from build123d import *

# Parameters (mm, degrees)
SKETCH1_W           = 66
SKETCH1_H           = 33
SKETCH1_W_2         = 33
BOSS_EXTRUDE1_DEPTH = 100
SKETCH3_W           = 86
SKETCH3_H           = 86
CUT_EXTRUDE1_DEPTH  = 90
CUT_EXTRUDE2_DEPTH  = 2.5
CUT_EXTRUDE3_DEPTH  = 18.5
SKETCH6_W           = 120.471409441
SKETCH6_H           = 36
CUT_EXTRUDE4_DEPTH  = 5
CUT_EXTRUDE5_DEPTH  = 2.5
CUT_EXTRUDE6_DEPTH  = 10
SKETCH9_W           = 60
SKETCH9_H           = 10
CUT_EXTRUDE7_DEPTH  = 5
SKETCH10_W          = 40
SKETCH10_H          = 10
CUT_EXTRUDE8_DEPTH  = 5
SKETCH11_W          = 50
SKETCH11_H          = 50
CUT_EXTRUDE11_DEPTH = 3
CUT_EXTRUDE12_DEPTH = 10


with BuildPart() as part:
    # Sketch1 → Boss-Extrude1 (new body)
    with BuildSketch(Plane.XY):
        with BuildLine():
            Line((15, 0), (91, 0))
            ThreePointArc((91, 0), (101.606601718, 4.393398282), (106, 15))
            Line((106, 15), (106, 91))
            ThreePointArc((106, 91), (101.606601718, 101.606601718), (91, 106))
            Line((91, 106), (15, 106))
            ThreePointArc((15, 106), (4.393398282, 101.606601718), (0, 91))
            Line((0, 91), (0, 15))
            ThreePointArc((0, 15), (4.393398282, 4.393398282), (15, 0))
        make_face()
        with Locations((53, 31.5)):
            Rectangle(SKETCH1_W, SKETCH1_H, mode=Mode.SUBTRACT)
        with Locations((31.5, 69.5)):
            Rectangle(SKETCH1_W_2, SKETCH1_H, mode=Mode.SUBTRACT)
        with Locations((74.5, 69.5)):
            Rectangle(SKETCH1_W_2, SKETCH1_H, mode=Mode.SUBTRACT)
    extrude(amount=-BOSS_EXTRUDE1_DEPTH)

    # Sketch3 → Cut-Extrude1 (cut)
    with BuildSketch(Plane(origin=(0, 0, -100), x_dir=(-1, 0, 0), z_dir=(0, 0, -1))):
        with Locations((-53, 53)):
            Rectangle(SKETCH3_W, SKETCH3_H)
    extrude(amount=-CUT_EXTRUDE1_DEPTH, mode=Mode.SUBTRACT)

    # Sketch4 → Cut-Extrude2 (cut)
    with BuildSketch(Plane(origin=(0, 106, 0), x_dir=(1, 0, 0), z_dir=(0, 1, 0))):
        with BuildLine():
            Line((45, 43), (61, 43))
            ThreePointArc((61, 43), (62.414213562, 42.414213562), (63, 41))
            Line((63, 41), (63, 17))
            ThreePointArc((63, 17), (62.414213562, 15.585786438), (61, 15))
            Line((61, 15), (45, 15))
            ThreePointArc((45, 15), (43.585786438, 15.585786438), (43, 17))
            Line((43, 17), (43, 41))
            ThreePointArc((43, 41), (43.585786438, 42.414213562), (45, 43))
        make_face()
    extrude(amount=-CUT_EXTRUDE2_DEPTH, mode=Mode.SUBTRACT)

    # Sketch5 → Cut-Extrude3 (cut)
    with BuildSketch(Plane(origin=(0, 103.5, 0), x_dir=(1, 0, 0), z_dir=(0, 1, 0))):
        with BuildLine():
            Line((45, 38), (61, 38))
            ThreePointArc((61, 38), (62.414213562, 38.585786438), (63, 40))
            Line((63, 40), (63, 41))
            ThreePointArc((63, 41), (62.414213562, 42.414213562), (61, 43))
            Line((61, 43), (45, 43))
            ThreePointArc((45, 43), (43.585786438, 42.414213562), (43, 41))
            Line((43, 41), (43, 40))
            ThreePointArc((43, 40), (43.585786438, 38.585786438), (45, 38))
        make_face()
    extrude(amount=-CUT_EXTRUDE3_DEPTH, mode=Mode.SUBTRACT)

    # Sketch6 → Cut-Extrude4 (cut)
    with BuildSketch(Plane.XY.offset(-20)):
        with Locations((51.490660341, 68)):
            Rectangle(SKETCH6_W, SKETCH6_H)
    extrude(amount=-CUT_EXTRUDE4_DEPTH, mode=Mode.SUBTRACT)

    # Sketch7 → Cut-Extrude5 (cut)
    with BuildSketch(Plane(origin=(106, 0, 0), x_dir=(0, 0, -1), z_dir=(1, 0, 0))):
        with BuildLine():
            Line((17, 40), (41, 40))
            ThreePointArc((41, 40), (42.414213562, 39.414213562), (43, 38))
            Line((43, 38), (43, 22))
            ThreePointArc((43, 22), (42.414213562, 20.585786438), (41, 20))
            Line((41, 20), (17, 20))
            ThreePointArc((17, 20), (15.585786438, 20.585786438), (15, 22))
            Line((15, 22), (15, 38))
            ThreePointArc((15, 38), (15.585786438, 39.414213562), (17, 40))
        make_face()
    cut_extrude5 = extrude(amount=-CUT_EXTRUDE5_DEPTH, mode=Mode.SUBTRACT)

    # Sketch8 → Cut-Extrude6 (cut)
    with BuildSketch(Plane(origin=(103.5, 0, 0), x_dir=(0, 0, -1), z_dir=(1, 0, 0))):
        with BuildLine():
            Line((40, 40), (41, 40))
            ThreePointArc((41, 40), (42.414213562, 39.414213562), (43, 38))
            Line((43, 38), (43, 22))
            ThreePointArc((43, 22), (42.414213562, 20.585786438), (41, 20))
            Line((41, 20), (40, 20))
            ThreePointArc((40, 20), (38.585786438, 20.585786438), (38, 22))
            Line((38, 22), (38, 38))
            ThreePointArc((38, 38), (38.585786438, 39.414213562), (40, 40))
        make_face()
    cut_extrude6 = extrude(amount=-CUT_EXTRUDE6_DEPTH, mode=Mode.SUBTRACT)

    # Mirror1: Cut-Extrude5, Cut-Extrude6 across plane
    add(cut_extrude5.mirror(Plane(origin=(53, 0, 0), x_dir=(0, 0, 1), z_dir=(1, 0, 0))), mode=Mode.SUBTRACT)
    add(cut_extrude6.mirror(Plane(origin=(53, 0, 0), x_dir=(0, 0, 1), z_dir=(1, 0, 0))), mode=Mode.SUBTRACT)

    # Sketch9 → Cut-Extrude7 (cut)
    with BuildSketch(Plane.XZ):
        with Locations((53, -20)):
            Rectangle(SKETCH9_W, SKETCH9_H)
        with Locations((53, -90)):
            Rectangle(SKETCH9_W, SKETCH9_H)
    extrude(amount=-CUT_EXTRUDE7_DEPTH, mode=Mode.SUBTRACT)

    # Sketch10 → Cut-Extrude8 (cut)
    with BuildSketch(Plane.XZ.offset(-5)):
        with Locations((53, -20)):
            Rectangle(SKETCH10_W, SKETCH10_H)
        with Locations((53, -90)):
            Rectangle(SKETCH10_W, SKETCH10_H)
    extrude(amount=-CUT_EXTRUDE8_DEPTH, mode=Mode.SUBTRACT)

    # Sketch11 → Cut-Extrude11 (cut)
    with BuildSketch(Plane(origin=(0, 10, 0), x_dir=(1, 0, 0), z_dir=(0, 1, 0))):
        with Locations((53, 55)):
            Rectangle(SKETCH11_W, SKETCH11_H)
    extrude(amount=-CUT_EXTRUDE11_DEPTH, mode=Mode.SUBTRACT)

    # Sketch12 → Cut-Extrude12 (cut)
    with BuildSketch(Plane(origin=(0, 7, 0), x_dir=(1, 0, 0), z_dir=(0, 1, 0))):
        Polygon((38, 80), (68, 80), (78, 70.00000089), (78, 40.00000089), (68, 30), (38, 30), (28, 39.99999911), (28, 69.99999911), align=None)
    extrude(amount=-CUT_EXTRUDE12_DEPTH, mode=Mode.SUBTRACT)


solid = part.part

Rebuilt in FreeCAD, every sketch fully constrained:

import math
import FreeCAD as App
import Part
import Sketcher
from FreeCAD import Vector

doc = App.newDocument("Part")
body = doc.addObject("PartDesign::Body", "Body")

sketch1 = doc.addObject("Sketcher::SketchObject", "Sketch")
body.addObject(sketch1)
sketch1.AttachmentSupport = (doc.XY_Plane, [""])
sketch1.MapMode = "FlatFace"
sketch1.addGeometry(Part.LineSegment(Vector(15, 0, 0), Vector(91, 0, 0)), False)
sketch1.addGeometry(Part.ArcOfCircle(Part.Circle(Vector(91, 15, 0), Vector(0, 0, 1), 15), math.radians(-90), math.radians(0)), False)
sketch1.addGeometry(Part.LineSegment(Vector(106, 15, 0), Vector(106, 91, 0)), False)
sketch1.addGeometry(Part.ArcOfCircle(Part.Circle(Vector(91, 91, 0), Vector(0, 0, 1), 15), math.radians(0), math.radians(90)), False)
sketch1.addGeometry(Part.LineSegment(Vector(91, 106, 0), Vector(15, 106, 0)), False)
sketch1.addGeometry(Part.ArcOfCircle(Part.Circle(Vector(15, 91, 0), Vector(0, 0, 1), 15), math.radians(90), math.radians(180)), False)
sketch1.addGeometry(Part.LineSegment(Vector(0, 91, 0), Vector(0, 15, 0)), False)
sketch1.addGeometry(Part.ArcOfCircle(Part.Circle(Vector(15, 15, 0), Vector(0, 0, 1), 15), math.radians(180), math.radians(270)), False)
sketch1.addGeometry(Part.LineSegment(Vector(86, 15, 0), Vector(20, 15, 0)), False)
sketch1.addGeometry(Part.LineSegment(Vector(20, 15, 0), Vector(20, 48, 0)), False)
sketch1.addGeometry(Part.LineSegment(Vector(20, 48, 0), Vector(86, 48, 0)), False)
sketch1.addGeometry(Part.LineSegment(Vector(86, 48, 0), Vector(86, 15, 0)), False)
sketch1.addGeometry(Part.LineSegment(Vector(48, 53, 0), Vector(15, 53, 0)), False)
sketch1.addGeometry(Part.LineSegment(Vector(15, 53, 0), Vector(15, 86, 0)), False)
sketch1.addGeometry(Part.LineSegment(Vector(15, 86, 0), Vector(48, 86, 0)), False)
sketch1.addGeometry(Part.LineSegment(Vector(48, 86, 0), Vector(48, 53, 0)), False)
sketch1.addGeometry(Part.LineSegment(Vector(91, 53, 0), Vector(58, 53, 0)), False)
sketch1.addGeometry(Part.LineSegment(Vector(58, 53, 0), Vector(58, 86, 0)), False)
sketch1.addGeometry(Part.LineSegment(Vector(58, 86, 0), Vector(91, 86, 0)), False)
sketch1.addGeometry(Part.LineSegment(Vector(91, 86, 0), Vector(91, 53, 0)), False)
sketch1.addConstraint(Sketcher.Constraint("Tangent", 0, 2, 1, 1))
sketch1.addConstraint(Sketcher.Constraint("Tangent", 1, 2, 2, 1))
sketch1.addConstraint(Sketcher.Constraint("Tangent", 2, 2, 3, 1))
sketch1.addConstraint(Sketcher.Constraint("Tangent", 3, 2, 4, 1))
sketch1.addConstraint(Sketcher.Constraint("Tangent", 4, 2, 5, 1))
sketch1.addConstraint(Sketcher.Constraint("Tangent", 5, 2, 6, 1))
sketch1.addConstraint(Sketcher.Constraint("Tangent", 6, 2, 7, 1))
sketch1.addConstraint(Sketcher.Constraint("Tangent", 7, 2, 0, 1))
sketch1.addConstraint(Sketcher.Constraint("Coincident", 8, 2, 9, 1))
sketch1.addConstraint(Sketcher.Constraint("Coincident", 9, 2, 10, 1))
sketch1.addConstraint(Sketcher.Constraint("Coincident", 10, 2, 11, 1))
sketch1.addConstraint(Sketcher.Constraint("Coincident", 11, 2, 8, 1))
sketch1.addConstraint(Sketcher.Constraint("Coincident", 12, 2, 13, 1))
sketch1.addConstraint(Sketcher.Constraint("Coincident", 13, 2, 14, 1))
sketch1.addConstraint(Sketcher.Constraint("Coincident", 14, 2, 15, 1))
sketch1.addConstraint(Sketcher.Constraint("Coincident", 15, 2, 12, 1))
sketch1.addConstraint(Sketcher.Constraint("Coincident", 16, 2, 17, 1))
sketch1.addConstraint(Sketcher.Constraint("Coincident", 17, 2, 18, 1))
sketch1.addConstraint(Sketcher.Constraint("Coincident", 18, 2, 19, 1))
sketch1.addConstraint(Sketcher.Constraint("Coincident", 19, 2, 16, 1))
sketch1.addConstraint(Sketcher.Constraint("Horizontal", 0))
sketch1.addConstraint(Sketcher.Constraint("Vertical", 2))
sketch1.addConstraint(Sketcher.Constraint("Horizontal", 4))
sketch1.addConstraint(Sketcher.Constraint("Vertical", 6))
sketch1.addConstraint(Sketcher.Constraint("Horizontal", 8))
sketch1.addConstraint(Sketcher.Constraint("Vertical", 9))
sketch1.addConstraint(Sketcher.Constraint("Horizontal", 10))
sketch1.addConstraint(Sketcher.Constraint("Vertical", 11))
sketch1.addConstraint(Sketcher.Constraint("Horizontal", 12))
sketch1.addConstraint(Sketcher.Constraint("Vertical", 13))
sketch1.addConstraint(Sketcher.Constraint("Horizontal", 14))
sketch1.addConstraint(Sketcher.Constraint("Vertical", 15))
sketch1.addConstraint(Sketcher.Constraint("Horizontal", 16))
sketch1.addConstraint(Sketcher.Constraint("Vertical", 17))
sketch1.addConstraint(Sketcher.Constraint("Horizontal", 18))
sketch1.addConstraint(Sketcher.Constraint("Vertical", 19))
sketch1.addConstraint(Sketcher.Constraint("Equal", 1, 3))
sketch1.addConstraint(Sketcher.Constraint("Equal", 3, 5))
sketch1.addConstraint(Sketcher.Constraint("Equal", 5, 7))
sketch1.addConstraint(Sketcher.Constraint("PointOnObject", 0, 2, -1))
sketch1.addConstraint(Sketcher.Constraint("PointOnObject", 5, 2, -2))
sketch1.addConstraint(Sketcher.Constraint("Horizontal", 6, 2, 8, 2))
sketch1.addConstraint(Sketcher.Constraint("Horizontal", 15, 2, 16, 2))
sketch1.addConstraint(Sketcher.Constraint("Horizontal", 14, 2, 17, 2))
sketch1.addConstraint(Sketcher.Constraint("Vertical", 7, 2, 12, 2))
sketch1.addConstraint(Sketcher.Constraint("Vertical", 3, 2, 18, 2))
sketch1.addConstraint(Sketcher.Constraint("Equal", 14, 16))
sketch1.addConstraint(Sketcher.Constraint("Equal", 4, 2))
sketch1.addConstraint(Sketcher.Constraint("Equal", 18, 9))
sketch1.addConstraint(Sketcher.Constraint("Equal", 11, 13))
sketch1.addConstraint(Sketcher.Constraint("Radius", 1, 15.0))
sketch1.addConstraint(Sketcher.Constraint("DistanceX", 0, 1, 0, 2, 76.0))
sketch1.addConstraint(Sketcher.Constraint("DistanceX", 8, 2, 8, 1, 66.0))
sketch1.addConstraint(Sketcher.Constraint("DistanceX", 12, 2, 12, 1, 33.0))
sketch1.addConstraint(Sketcher.Constraint("DistanceX", -1, 1, 8, 2, 20.0))
sketch1.addConstraint(Sketcher.Constraint("DistanceY", -1, 1, 12, 2, 53.0))
pad1 = doc.addObject("PartDesign::Pad", "Pad")
body.addObject(pad1)
pad1.Profile = sketch1
pad1.Length = 100
pad1.Reversed = True

sketch2 = doc.addObject("Sketcher::SketchObject", "Sketch001")
body.addObject(sketch2)
sketch2.AttachmentSupport = (doc.XY_Plane, [""])
sketch2.MapMode = "FlatFace"
sketch2.AttachmentOffset = App.Placement(Vector(0, 0, -100), App.Rotation())
sketch2.addGeometry(Part.LineSegment(Vector(96, 96, 0), Vector(96, 10, 0)), False)
sketch2.addGeometry(Part.LineSegment(Vector(96, 10, 0), Vector(10, 10, 0)), False)
sketch2.addGeometry(Part.LineSegment(Vector(10, 10, 0), Vector(10, 96, 0)), False)
sketch2.addGeometry(Part.LineSegment(Vector(10, 96, 0), Vector(96, 96, 0)), False)
sketch2.addConstraint(Sketcher.Constraint("Coincident", 0, 2, 1, 1))
sketch2.addConstraint(Sketcher.Constraint("Coincident", 1, 2, 2, 1))
sketch2.addConstraint(Sketcher.Constraint("Coincident", 2, 2, 3, 1))
sketch2.addConstraint(Sketcher.Constraint("Coincident", 3, 2, 0, 1))
sketch2.addConstraint(Sketcher.Constraint("Vertical", 0))
sketch2.addConstraint(Sketcher.Constraint("Horizontal", 1))
sketch2.addConstraint(Sketcher.Constraint("Vertical", 2))
sketch2.addConstraint(Sketcher.Constraint("Horizontal", 3))
sketch2.addConstraint(Sketcher.Constraint("Equal", 3, 0))
sketch2.addConstraint(Sketcher.Constraint("DistanceX", 1, 2, 1, 1, 86.0))
sketch2.addConstraint(Sketcher.Constraint("DistanceX", -1, 1, 0, 2, 96.0))
sketch2.addConstraint(Sketcher.Constraint("DistanceY", -1, 1, 0, 2, 10.0))
pocket1 = doc.addObject("PartDesign::Pocket", "Pocket")
body.addObject(pocket1)
pocket1.Profile = sketch2
pocket1.Length = 90
pocket1.Reversed = True

sketch3 = doc.addObject("Sketcher::SketchObject", "Sketch002")
body.addObject(sketch3)
sketch3.AttachmentSupport = (doc.XZ_Plane, [""])
sketch3.MapMode = "FlatFace"
sketch3.AttachmentOffset = App.Placement(Vector(0, 0, -106), App.Rotation())
sketch3.addGeometry(Part.LineSegment(Vector(61, -43, 0), Vector(45, -43, 0)), False)
sketch3.addGeometry(Part.ArcOfCircle(Part.Circle(Vector(45, -41, 0), Vector(0, 0, 1), 2), math.radians(-180), math.radians(-90)), False)
sketch3.addGeometry(Part.LineSegment(Vector(43, -41, 0), Vector(43, -17, 0)), False)
sketch3.addGeometry(Part.ArcOfCircle(Part.Circle(Vector(45, -17, 0), Vector(0, 0, 1), 2), math.radians(90), math.radians(180)), False)
sketch3.addGeometry(Part.LineSegment(Vector(45, -15, 0), Vector(61, -15, 0)), False)
sketch3.addGeometry(Part.ArcOfCircle(Part.Circle(Vector(61, -17, 0), Vector(0, 0, 1), 2), math.radians(0), math.radians(90)), False)
sketch3.addGeometry(Part.LineSegment(Vector(63, -17, 0), Vector(63, -41, 0)), False)
sketch3.addGeometry(Part.ArcOfCircle(Part.Circle(Vector(61, -41, 0), Vector(0, 0, 1), 2), math.radians(-90), math.radians(0)), False)
sketch3.addConstraint(Sketcher.Constraint("Tangent", 0, 2, 1, 2))
sketch3.addConstraint(Sketcher.Constraint("Tangent", 1, 1, 2, 1))
sketch3.addConstraint(Sketcher.Constraint("Tangent", 2, 2, 3, 2))
sketch3.addConstraint(Sketcher.Constraint("Tangent", 3, 1, 4, 1))
sketch3.addConstraint(Sketcher.Constraint("Tangent", 4, 2, 5, 2))
sketch3.addConstraint(Sketcher.Constraint("Tangent", 5, 1, 6, 1))
sketch3.addConstraint(Sketcher.Constraint("Tangent", 6, 2, 7, 2))
sketch3.addConstraint(Sketcher.Constraint("Tangent", 7, 1, 0, 1))
sketch3.addConstraint(Sketcher.Constraint("Horizontal", 0))
sketch3.addConstraint(Sketcher.Constraint("Vertical", 2))
sketch3.addConstraint(Sketcher.Constraint("Horizontal", 4))
sketch3.addConstraint(Sketcher.Constraint("Vertical", 6))
sketch3.addConstraint(Sketcher.Constraint("Equal", 1, 3))
sketch3.addConstraint(Sketcher.Constraint("Equal", 3, 5))
sketch3.addConstraint(Sketcher.Constraint("Equal", 5, 7))
sketch3.addConstraint(Sketcher.Constraint("Radius", 1, 2.0))
sketch3.addConstraint(Sketcher.Constraint("DistanceX", 0, 2, 0, 1, 16.0))
sketch3.addConstraint(Sketcher.Constraint("DistanceY", 2, 1, 2, 2, 24.0))
sketch3.addConstraint(Sketcher.Constraint("DistanceX", -1, 1, 1, 3, 45.0))
sketch3.addConstraint(Sketcher.Constraint("DistanceY", 1, 3, -1, 1, 41.0))
pocket2 = doc.addObject("PartDesign::Pocket", "Pocket001")
body.addObject(pocket2)
pocket2.Profile = sketch3
pocket2.Length = 2.5
pocket2.Reversed = True

sketch4 = doc.addObject("Sketcher::SketchObject", "Sketch003")
body.addObject(sketch4)
sketch4.AttachmentSupport = (doc.XZ_Plane, [""])
sketch4.MapMode = "FlatFace"
sketch4.AttachmentOffset = App.Placement(Vector(0, 0, -103.5), App.Rotation())
sketch4.addGeometry(Part.LineSegment(Vector(45, -38, 0), Vector(61, -38, 0)), False)
sketch4.addGeometry(Part.ArcOfCircle(Part.Circle(Vector(61, -40, 0), Vector(0, 0, 1), 2), math.radians(0), math.radians(90)), False)
sketch4.addGeometry(Part.LineSegment(Vector(63, -40, 0), Vector(63, -41, 0)), False)
sketch4.addGeometry(Part.ArcOfCircle(Part.Circle(Vector(61, -41, 0), Vector(0, 0, 1), 2), math.radians(-90), math.radians(0)), False)
sketch4.addGeometry(Part.LineSegment(Vector(61, -43, 0), Vector(45, -43, 0)), False)
sketch4.addGeometry(Part.ArcOfCircle(Part.Circle(Vector(45, -41, 0), Vector(0, 0, 1), 2), math.radians(-180), math.radians(-90)), False)
sketch4.addGeometry(Part.LineSegment(Vector(43, -41, 0), Vector(43, -40, 0)), False)
sketch4.addGeometry(Part.ArcOfCircle(Part.Circle(Vector(45, -40, 0), Vector(0, 0, 1), 2), math.radians(90), math.radians(180)), False)
sketch4.addConstraint(Sketcher.Constraint("Tangent", 0, 2, 1, 2))
sketch4.addConstraint(Sketcher.Constraint("Tangent", 1, 1, 2, 1))
sketch4.addConstraint(Sketcher.Constraint("Tangent", 2, 2, 3, 2))
sketch4.addConstraint(Sketcher.Constraint("Tangent", 3, 1, 4, 1))
sketch4.addConstraint(Sketcher.Constraint("Tangent", 4, 2, 5, 2))
sketch4.addConstraint(Sketcher.Constraint("Tangent", 5, 1, 6, 1))
sketch4.addConstraint(Sketcher.Constraint("Tangent", 6, 2, 7, 2))
sketch4.addConstraint(Sketcher.Constraint("Tangent", 7, 1, 0, 1))
sketch4.addConstraint(Sketcher.Constraint("Horizontal", 0))
sketch4.addConstraint(Sketcher.Constraint("Vertical", 2))
sketch4.addConstraint(Sketcher.Constraint("Horizontal", 4))
sketch4.addConstraint(Sketcher.Constraint("Vertical", 6))
sketch4.addConstraint(Sketcher.Constraint("Equal", 1, 3))
sketch4.addConstraint(Sketcher.Constraint("Equal", 3, 5))
sketch4.addConstraint(Sketcher.Constraint("Equal", 5, 7))
sketch4.addConstraint(Sketcher.Constraint("Radius", 1, 2.0))
sketch4.addConstraint(Sketcher.Constraint("DistanceX", 0, 1, 0, 2, 16.0))
sketch4.addConstraint(Sketcher.Constraint("DistanceY", 2, 2, 2, 1, 1.0))
sketch4.addConstraint(Sketcher.Constraint("DistanceX", -1, 1, 1, 3, 61.0))
sketch4.addConstraint(Sketcher.Constraint("DistanceY", 1, 3, -1, 1, 40.0))
pocket3 = doc.addObject("PartDesign::Pocket", "Pocket002")
body.addObject(pocket3)
pocket3.Profile = sketch4
pocket3.Length = 18.5
pocket3.Reversed = True

sketch5 = doc.addObject("Sketcher::SketchObject", "Sketch004")
body.addObject(sketch5)
sketch5.AttachmentSupport = (doc.XY_Plane, [""])
sketch5.MapMode = "FlatFace"
sketch5.AttachmentOffset = App.Placement(Vector(0, 0, -20), App.Rotation())
sketch5.addGeometry(Part.LineSegment(Vector(-9, 86, 0), Vector(-9, 50, 0)), False)
sketch5.addGeometry(Part.LineSegment(Vector(-9, 50, 0), Vector(112, 50, 0)), False)
sketch5.addGeometry(Part.LineSegment(Vector(112, 50, 0), Vector(112, 86, 0)), False)
sketch5.addGeometry(Part.LineSegment(Vector(112, 86, 0), Vector(-9, 86, 0)), False)
sketch5.addConstraint(Sketcher.Constraint("Coincident", 0, 2, 1, 1))
sketch5.addConstraint(Sketcher.Constraint("Coincident", 1, 2, 2, 1))
sketch5.addConstraint(Sketcher.Constraint("Coincident", 2, 2, 3, 1))
sketch5.addConstraint(Sketcher.Constraint("Coincident", 3, 2, 0, 1))
sketch5.addConstraint(Sketcher.Constraint("Vertical", 0))
sketch5.addConstraint(Sketcher.Constraint("Horizontal", 1))
sketch5.addConstraint(Sketcher.Constraint("Vertical", 2))
sketch5.addConstraint(Sketcher.Constraint("Horizontal", 3))
sketch5.addConstraint(Sketcher.Constraint("DistanceY", 0, 2, 0, 1, 36.0))
sketch5.addConstraint(Sketcher.Constraint("DistanceY", -1, 1, 0, 2, 50.0))
sketch5.addConstraint(Sketcher.Constraint("DistanceX", 1, 1, 1, 2, 120.471409))
sketch5.addConstraint(Sketcher.Constraint("DistanceX", 0, 2, -1, 1, 8.745044))
pocket4 = doc.addObject("PartDesign::Pocket", "Pocket003")
body.addObject(pocket4)
pocket4.Profile = sketch5
pocket4.Length = 5

sketch6 = doc.addObject("Sketcher::SketchObject", "Sketch005")
body.addObject(sketch6)
sketch6.AttachmentSupport = (doc.YZ_Plane, [""])
sketch6.MapMode = "FlatFace"
sketch6.AttachmentOffset = App.Placement(Vector(0, 0, 106), App.Rotation())
sketch6.addGeometry(Part.LineSegment(Vector(40, -41, 0), Vector(40, -17, 0)), False)
sketch6.addGeometry(Part.ArcOfCircle(Part.Circle(Vector(38, -17, 0), Vector(0, 0, 1), 2), math.radians(0), math.radians(90)), False)
sketch6.addGeometry(Part.LineSegment(Vector(38, -15, 0), Vector(22, -15, 0)), False)
sketch6.addGeometry(Part.ArcOfCircle(Part.Circle(Vector(22, -17, 0), Vector(0, 0, 1), 2), math.radians(90), math.radians(180)), False)
sketch6.addGeometry(Part.LineSegment(Vector(20, -17, 0), Vector(20, -41, 0)), False)
sketch6.addGeometry(Part.ArcOfCircle(Part.Circle(Vector(22, -41, 0), Vector(0, 0, 1), 2), math.radians(-180), math.radians(-90)), False)
sketch6.addGeometry(Part.LineSegment(Vector(22, -43, 0), Vector(38, -43, 0)), False)
sketch6.addGeometry(Part.ArcOfCircle(Part.Circle(Vector(38, -41, 0), Vector(0, 0, 1), 2), math.radians(-90), math.radians(0)), False)
sketch6.addConstraint(Sketcher.Constraint("Tangent", 0, 2, 1, 1))
sketch6.addConstraint(Sketcher.Constraint("Tangent", 1, 2, 2, 1))
sketch6.addConstraint(Sketcher.Constraint("Tangent", 2, 2, 3, 1))
sketch6.addConstraint(Sketcher.Constraint("Tangent", 3, 2, 4, 1))
sketch6.addConstraint(Sketcher.Constraint("Tangent", 4, 2, 5, 1))
sketch6.addConstraint(Sketcher.Constraint("Tangent", 5, 2, 6, 1))
sketch6.addConstraint(Sketcher.Constraint("Tangent", 6, 2, 7, 1))
sketch6.addConstraint(Sketcher.Constraint("Tangent", 7, 2, 0, 1))
sketch6.addConstraint(Sketcher.Constraint("Vertical", 0))
sketch6.addConstraint(Sketcher.Constraint("Horizontal", 2))
sketch6.addConstraint(Sketcher.Constraint("Vertical", 4))
sketch6.addConstraint(Sketcher.Constraint("Horizontal", 6))
sketch6.addConstraint(Sketcher.Constraint("Equal", 1, 3))
sketch6.addConstraint(Sketcher.Constraint("Equal", 3, 5))
sketch6.addConstraint(Sketcher.Constraint("Equal", 5, 7))
sketch6.addConstraint(Sketcher.Constraint("Radius", 1, 2.0))
sketch6.addConstraint(Sketcher.Constraint("DistanceX", 2, 2, 2, 1, 16.0))
sketch6.addConstraint(Sketcher.Constraint("DistanceY", 0, 1, 0, 2, 24.0))
sketch6.addConstraint(Sketcher.Constraint("DistanceX", -1, 1, 1, 3, 38.0))
sketch6.addConstraint(Sketcher.Constraint("DistanceY", 1, 3, -1, 1, 17.0))
pocket5 = doc.addObject("PartDesign::Pocket", "Pocket004")
body.addObject(pocket5)
pocket5.Profile = sketch6
pocket5.Length = 2.5

sketch7 = doc.addObject("Sketcher::SketchObject", "Sketch006")
body.addObject(sketch7)
sketch7.AttachmentSupport = (doc.YZ_Plane, [""])
sketch7.MapMode = "FlatFace"
sketch7.AttachmentOffset = App.Placement(Vector(0, 0, 103.5), App.Rotation())
sketch7.addGeometry(Part.LineSegment(Vector(40, -41, 0), Vector(40, -40, 0)), False)
sketch7.addGeometry(Part.ArcOfCircle(Part.Circle(Vector(38, -40, 0), Vector(0, 0, 1), 2), math.radians(0), math.radians(90)), False)
sketch7.addGeometry(Part.LineSegment(Vector(38, -38, 0), Vector(22, -38, 0)), False)
sketch7.addGeometry(Part.ArcOfCircle(Part.Circle(Vector(22, -40, 0), Vector(0, 0, 1), 2), math.radians(90), math.radians(180)), False)
sketch7.addGeometry(Part.LineSegment(Vector(20, -40, 0), Vector(20, -41, 0)), False)
sketch7.addGeometry(Part.ArcOfCircle(Part.Circle(Vector(22, -41, 0), Vector(0, 0, 1), 2), math.radians(-180), math.radians(-90)), False)
sketch7.addGeometry(Part.LineSegment(Vector(22, -43, 0), Vector(38, -43, 0)), False)
sketch7.addGeometry(Part.ArcOfCircle(Part.Circle(Vector(38, -41, 0), Vector(0, 0, 1), 2), math.radians(-90), math.radians(0)), False)
sketch7.addConstraint(Sketcher.Constraint("Tangent", 0, 2, 1, 1))
sketch7.addConstraint(Sketcher.Constraint("Tangent", 1, 2, 2, 1))
sketch7.addConstraint(Sketcher.Constraint("Tangent", 2, 2, 3, 1))
sketch7.addConstraint(Sketcher.Constraint("Tangent", 3, 2, 4, 1))
sketch7.addConstraint(Sketcher.Constraint("Tangent", 4, 2, 5, 1))
sketch7.addConstraint(Sketcher.Constraint("Tangent", 5, 2, 6, 1))
sketch7.addConstraint(Sketcher.Constraint("Tangent", 6, 2, 7, 1))
sketch7.addConstraint(Sketcher.Constraint("Tangent", 7, 2, 0, 1))
sketch7.addConstraint(Sketcher.Constraint("Vertical", 0))
sketch7.addConstraint(Sketcher.Constraint("Horizontal", 2))
sketch7.addConstraint(Sketcher.Constraint("Vertical", 4))
sketch7.addConstraint(Sketcher.Constraint("Horizontal", 6))
sketch7.addConstraint(Sketcher.Constraint("Equal", 1, 3))
sketch7.addConstraint(Sketcher.Constraint("Equal", 3, 5))
sketch7.addConstraint(Sketcher.Constraint("Equal", 5, 7))
sketch7.addConstraint(Sketcher.Constraint("Radius", 1, 2.0))
sketch7.addConstraint(Sketcher.Constraint("DistanceX", 2, 2, 2, 1, 16.0))
sketch7.addConstraint(Sketcher.Constraint("DistanceY", 0, 1, 0, 2, 1.0))
sketch7.addConstraint(Sketcher.Constraint("DistanceX", -1, 1, 1, 3, 38.0))
sketch7.addConstraint(Sketcher.Constraint("DistanceY", 1, 3, -1, 1, 40.0))
pocket6 = doc.addObject("PartDesign::Pocket", "Pocket005")
body.addObject(pocket6)
pocket6.Profile = sketch7
pocket6.Length = 10
doc.recompute()

datumplane = doc.addObject("PartDesign::Plane", "DatumPlane")
body.addObject(datumplane)
datumplane.AttachmentSupport = (doc.YZ_Plane, [""])
datumplane.MapMode = "FlatFace"
datumplane.AttachmentOffset = App.Placement(Vector(0, 0, 53), App.Rotation())
mirrored = doc.addObject("PartDesign::Mirrored", "Mirrored")
body.addObject(mirrored)
mirrored.Originals = [pocket5, pocket6]
mirrored.MirrorPlane = (datumplane, [""])
body.Tip = mirrored

sketch8 = doc.addObject("Sketcher::SketchObject", "Sketch007")
body.addObject(sketch8)
sketch8.AttachmentSupport = (doc.XZ_Plane, [""])
sketch8.MapMode = "FlatFace"
sketch8.addGeometry(Part.LineSegment(Vector(23, -15, 0), Vector(23, -25, 0)), False)
sketch8.addGeometry(Part.LineSegment(Vector(23, -25, 0), Vector(83, -25, 0)), False)
sketch8.addGeometry(Part.LineSegment(Vector(83, -25, 0), Vector(83, -15, 0)), False)
sketch8.addGeometry(Part.LineSegment(Vector(83, -15, 0), Vector(23, -15, 0)), False)
sketch8.addGeometry(Part.LineSegment(Vector(23, -85, 0), Vector(23, -95, 0)), False)
sketch8.addGeometry(Part.LineSegment(Vector(23, -95, 0), Vector(83, -95, 0)), False)
sketch8.addGeometry(Part.LineSegment(Vector(83, -95, 0), Vector(83, -85, 0)), False)
sketch8.addGeometry(Part.LineSegment(Vector(83, -85, 0), Vector(23, -85, 0)), False)
sketch8.addConstraint(Sketcher.Constraint("Coincident", 0, 2, 1, 1))
sketch8.addConstraint(Sketcher.Constraint("Coincident", 1, 2, 2, 1))
sketch8.addConstraint(Sketcher.Constraint("Coincident", 2, 2, 3, 1))
sketch8.addConstraint(Sketcher.Constraint("Coincident", 3, 2, 0, 1))
sketch8.addConstraint(Sketcher.Constraint("Coincident", 4, 2, 5, 1))
sketch8.addConstraint(Sketcher.Constraint("Coincident", 5, 2, 6, 1))
sketch8.addConstraint(Sketcher.Constraint("Coincident", 6, 2, 7, 1))
sketch8.addConstraint(Sketcher.Constraint("Coincident", 7, 2, 4, 1))
sketch8.addConstraint(Sketcher.Constraint("Vertical", 0))
sketch8.addConstraint(Sketcher.Constraint("Horizontal", 1))
sketch8.addConstraint(Sketcher.Constraint("Vertical", 2))
sketch8.addConstraint(Sketcher.Constraint("Horizontal", 3))
sketch8.addConstraint(Sketcher.Constraint("Vertical", 4))
sketch8.addConstraint(Sketcher.Constraint("Horizontal", 5))
sketch8.addConstraint(Sketcher.Constraint("Vertical", 6))
sketch8.addConstraint(Sketcher.Constraint("Horizontal", 7))
sketch8.addConstraint(Sketcher.Constraint("Vertical", 3, 2, 4, 2))
sketch8.addConstraint(Sketcher.Constraint("Vertical", 2, 2, 5, 2))
sketch8.addConstraint(Sketcher.Constraint("Equal", 2, 4))
sketch8.addConstraint(Sketcher.Constraint("DistanceX", 1, 1, 1, 2, 60.0))
sketch8.addConstraint(Sketcher.Constraint("DistanceY", 0, 2, 0, 1, 10.0))
sketch8.addConstraint(Sketcher.Constraint("DistanceX", -1, 1, 0, 2, 23.0))
sketch8.addConstraint(Sketcher.Constraint("DistanceY", 0, 2, -1, 1, 25.0))
sketch8.addConstraint(Sketcher.Constraint("DistanceY", 4, 2, -1, 1, 95.0))
pocket7 = doc.addObject("PartDesign::Pocket", "Pocket006")
body.addObject(pocket7)
pocket7.Profile = sketch8
pocket7.Length = 5

sketch9 = doc.addObject("Sketcher::SketchObject", "Sketch008")
body.addObject(sketch9)
sketch9.AttachmentSupport = (doc.XZ_Plane, [""])
sketch9.MapMode = "FlatFace"
sketch9.AttachmentOffset = App.Placement(Vector(0, 0, -5), App.Rotation())
sketch9.addGeometry(Part.LineSegment(Vector(33, -15, 0), Vector(33, -25, 0)), False)
sketch9.addGeometry(Part.LineSegment(Vector(33, -25, 0), Vector(73, -25, 0)), False)
sketch9.addGeometry(Part.LineSegment(Vector(73, -25, 0), Vector(73, -15, 0)), False)
sketch9.addGeometry(Part.LineSegment(Vector(73, -15, 0), Vector(33, -15, 0)), False)
sketch9.addGeometry(Part.LineSegment(Vector(33, -85, 0), Vector(33, -95, 0)), False)
sketch9.addGeometry(Part.LineSegment(Vector(33, -95, 0), Vector(73, -95, 0)), False)
sketch9.addGeometry(Part.LineSegment(Vector(73, -95, 0), Vector(73, -85, 0)), False)
sketch9.addGeometry(Part.LineSegment(Vector(73, -85, 0), Vector(33, -85, 0)), False)
sketch9.addConstraint(Sketcher.Constraint("Coincident", 0, 2, 1, 1))
sketch9.addConstraint(Sketcher.Constraint("Coincident", 1, 2, 2, 1))
sketch9.addConstraint(Sketcher.Constraint("Coincident", 2, 2, 3, 1))
sketch9.addConstraint(Sketcher.Constraint("Coincident", 3, 2, 0, 1))
sketch9.addConstraint(Sketcher.Constraint("Coincident", 4, 2, 5, 1))
sketch9.addConstraint(Sketcher.Constraint("Coincident", 5, 2, 6, 1))
sketch9.addConstraint(Sketcher.Constraint("Coincident", 6, 2, 7, 1))
sketch9.addConstraint(Sketcher.Constraint("Coincident", 7, 2, 4, 1))
sketch9.addConstraint(Sketcher.Constraint("Vertical", 0))
sketch9.addConstraint(Sketcher.Constraint("Horizontal", 1))
sketch9.addConstraint(Sketcher.Constraint("Vertical", 2))
sketch9.addConstraint(Sketcher.Constraint("Horizontal", 3))
sketch9.addConstraint(Sketcher.Constraint("Vertical", 4))
sketch9.addConstraint(Sketcher.Constraint("Horizontal", 5))
sketch9.addConstraint(Sketcher.Constraint("Vertical", 6))
sketch9.addConstraint(Sketcher.Constraint("Horizontal", 7))
sketch9.addConstraint(Sketcher.Constraint("Vertical", 3, 2, 4, 2))
sketch9.addConstraint(Sketcher.Constraint("Vertical", 2, 2, 5, 2))
sketch9.addConstraint(Sketcher.Constraint("Equal", 2, 4))
sketch9.addConstraint(Sketcher.Constraint("DistanceX", 1, 1, 1, 2, 40.0))
sketch9.addConstraint(Sketcher.Constraint("DistanceY", 0, 2, 0, 1, 10.0))
sketch9.addConstraint(Sketcher.Constraint("DistanceX", -1, 1, 0, 2, 33.0))
sketch9.addConstraint(Sketcher.Constraint("DistanceY", 0, 2, -1, 1, 25.0))
sketch9.addConstraint(Sketcher.Constraint("DistanceY", 4, 2, -1, 1, 95.0))
pocket8 = doc.addObject("PartDesign::Pocket", "Pocket007")
body.addObject(pocket8)
pocket8.Profile = sketch9
pocket8.Length = 5

sketch10 = doc.addObject("Sketcher::SketchObject", "Sketch009")
body.addObject(sketch10)
sketch10.AttachmentSupport = (doc.XZ_Plane, [""])
sketch10.MapMode = "FlatFace"
sketch10.AttachmentOffset = App.Placement(Vector(0, 0, -10), App.Rotation())
sketch10.addGeometry(Part.LineSegment(Vector(28, -80, 0), Vector(28, -30, 0)), False)
sketch10.addGeometry(Part.LineSegment(Vector(28, -30, 0), Vector(78, -30, 0)), False)
sketch10.addGeometry(Part.LineSegment(Vector(78, -30, 0), Vector(78, -80, 0)), False)
sketch10.addGeometry(Part.LineSegment(Vector(78, -80, 0), Vector(28, -80, 0)), False)
sketch10.addConstraint(Sketcher.Constraint("Coincident", 0, 2, 1, 1))
sketch10.addConstraint(Sketcher.Constraint("Coincident", 1, 2, 2, 1))
sketch10.addConstraint(Sketcher.Constraint("Coincident", 2, 2, 3, 1))
sketch10.addConstraint(Sketcher.Constraint("Coincident", 3, 2, 0, 1))
sketch10.addConstraint(Sketcher.Constraint("Vertical", 0))
sketch10.addConstraint(Sketcher.Constraint("Horizontal", 1))
sketch10.addConstraint(Sketcher.Constraint("Vertical", 2))
sketch10.addConstraint(Sketcher.Constraint("Horizontal", 3))
sketch10.addConstraint(Sketcher.Constraint("Equal", 3, 0))
sketch10.addConstraint(Sketcher.Constraint("DistanceX", 1, 1, 1, 2, 50.0))
sketch10.addConstraint(Sketcher.Constraint("DistanceX", -1, 1, 0, 2, 28.0))
sketch10.addConstraint(Sketcher.Constraint("DistanceY", 0, 2, -1, 1, 30.0))
pocket9 = doc.addObject("PartDesign::Pocket", "Pocket008")
body.addObject(pocket9)
pocket9.Profile = sketch10
pocket9.Length = 3
pocket9.Reversed = True

sketch11 = doc.addObject("Sketcher::SketchObject", "Sketch010")
body.addObject(sketch11)
sketch11.AttachmentSupport = (doc.XZ_Plane, [""])
sketch11.MapMode = "FlatFace"
sketch11.AttachmentOffset = App.Placement(Vector(0, 0, -7), App.Rotation())
sketch11.addGeometry(Part.LineSegment(Vector(68, -80, 0), Vector(38, -80, 0)), False)
sketch11.addGeometry(Part.LineSegment(Vector(38, -80, 0), Vector(28, -70, 0)), False)
sketch11.addGeometry(Part.LineSegment(Vector(28, -70, 0), Vector(28, -40, 0)), False)
sketch11.addGeometry(Part.LineSegment(Vector(28, -40, 0), Vector(38, -30, 0)), False)
sketch11.addGeometry(Part.LineSegment(Vector(38, -30, 0), Vector(68, -30, 0)), False)
sketch11.addGeometry(Part.LineSegment(Vector(68, -30, 0), Vector(78, -40, 0)), False)
sketch11.addGeometry(Part.LineSegment(Vector(78, -40, 0), Vector(78, -70, 0)), False)
sketch11.addGeometry(Part.LineSegment(Vector(78, -70, 0), Vector(68, -80, 0)), False)
sketch11.addConstraint(Sketcher.Constraint("Coincident", 0, 2, 1, 1))
sketch11.addConstraint(Sketcher.Constraint("Coincident", 1, 2, 2, 1))
sketch11.addConstraint(Sketcher.Constraint("Coincident", 2, 2, 3, 1))
sketch11.addConstraint(Sketcher.Constraint("Coincident", 3, 2, 4, 1))
sketch11.addConstraint(Sketcher.Constraint("Coincident", 4, 2, 5, 1))
sketch11.addConstraint(Sketcher.Constraint("Coincident", 5, 2, 6, 1))
sketch11.addConstraint(Sketcher.Constraint("Coincident", 6, 2, 7, 1))
sketch11.addConstraint(Sketcher.Constraint("Coincident", 7, 2, 0, 1))
sketch11.addConstraint(Sketcher.Constraint("Horizontal", 0))
sketch11.addConstraint(Sketcher.Constraint("Vertical", 2))
sketch11.addConstraint(Sketcher.Constraint("Horizontal", 4))
sketch11.addConstraint(Sketcher.Constraint("Vertical", 6))
sketch11.addConstraint(Sketcher.Constraint("Perpendicular", 1, 3))
sketch11.addConstraint(Sketcher.Constraint("Perpendicular", 3, 5))
sketch11.addConstraint(Sketcher.Constraint("Perpendicular", 5, 7))
sketch11.addConstraint(Sketcher.Constraint("Horizontal", 2, 2, 5, 2))
sketch11.addConstraint(Sketcher.Constraint("Horizontal", 1, 2, 6, 2))
sketch11.addConstraint(Sketcher.Constraint("Vertical", 0, 2, 3, 2))
sketch11.addConstraint(Sketcher.Constraint("Vertical", 4, 2, 7, 2))
sketch11.addConstraint(Sketcher.Constraint("Equal", 4, 2))
sketch11.addConstraint(Sketcher.Constraint("DistanceX", 0, 2, 0, 1, 30.0))
sketch11.addConstraint(Sketcher.Constraint("DistanceX", -1, 1, 0, 2, 38.0))
sketch11.addConstraint(Sketcher.Constraint("DistanceY", 0, 2, -1, 1, 80.0))
sketch11.addConstraint(Sketcher.Constraint("DistanceX", -1, 1, 1, 2, 28.0))
pocket10 = doc.addObject("PartDesign::Pocket", "Pocket009")
body.addObject(pocket10)
pocket10.Profile = sketch11
pocket10.Length = 10
pocket10.Reversed = True

doc.recompute()
